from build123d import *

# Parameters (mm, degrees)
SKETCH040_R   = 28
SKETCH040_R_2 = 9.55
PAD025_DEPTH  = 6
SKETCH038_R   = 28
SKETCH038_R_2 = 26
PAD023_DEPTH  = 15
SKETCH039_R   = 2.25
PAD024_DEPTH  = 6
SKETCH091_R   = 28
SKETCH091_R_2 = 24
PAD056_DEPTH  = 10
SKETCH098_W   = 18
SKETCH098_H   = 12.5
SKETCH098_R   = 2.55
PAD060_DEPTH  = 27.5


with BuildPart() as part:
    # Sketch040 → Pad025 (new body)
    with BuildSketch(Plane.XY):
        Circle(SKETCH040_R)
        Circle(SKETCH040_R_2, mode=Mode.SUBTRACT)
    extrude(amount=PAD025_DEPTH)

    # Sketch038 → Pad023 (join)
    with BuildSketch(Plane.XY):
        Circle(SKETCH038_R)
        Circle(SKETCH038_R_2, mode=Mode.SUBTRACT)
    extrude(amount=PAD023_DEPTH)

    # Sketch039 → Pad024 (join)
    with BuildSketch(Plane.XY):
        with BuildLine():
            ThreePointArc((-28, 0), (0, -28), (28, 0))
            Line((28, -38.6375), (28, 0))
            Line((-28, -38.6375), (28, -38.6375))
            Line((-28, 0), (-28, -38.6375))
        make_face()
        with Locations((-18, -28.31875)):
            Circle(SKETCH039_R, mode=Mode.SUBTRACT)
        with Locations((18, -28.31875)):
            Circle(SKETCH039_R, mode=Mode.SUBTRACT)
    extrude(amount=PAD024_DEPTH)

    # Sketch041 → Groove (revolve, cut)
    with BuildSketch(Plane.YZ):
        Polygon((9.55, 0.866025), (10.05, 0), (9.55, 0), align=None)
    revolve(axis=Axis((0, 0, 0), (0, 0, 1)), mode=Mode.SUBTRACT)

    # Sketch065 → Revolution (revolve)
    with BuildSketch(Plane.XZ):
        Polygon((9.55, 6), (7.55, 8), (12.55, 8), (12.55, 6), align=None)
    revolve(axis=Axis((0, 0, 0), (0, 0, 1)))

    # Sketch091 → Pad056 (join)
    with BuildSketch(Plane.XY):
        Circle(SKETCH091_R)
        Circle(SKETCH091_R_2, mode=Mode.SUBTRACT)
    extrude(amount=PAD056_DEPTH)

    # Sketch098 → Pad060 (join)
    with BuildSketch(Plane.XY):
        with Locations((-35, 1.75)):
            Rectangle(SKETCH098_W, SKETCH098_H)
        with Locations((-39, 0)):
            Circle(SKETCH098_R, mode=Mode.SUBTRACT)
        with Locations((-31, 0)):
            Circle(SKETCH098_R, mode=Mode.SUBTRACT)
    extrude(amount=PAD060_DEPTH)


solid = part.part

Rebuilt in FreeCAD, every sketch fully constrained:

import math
import FreeCAD as App
import Part
import Sketcher
Q = App.Units.Quantity


def add_polygon(sketch, points):
    """Adds a closed chain of lines whose ends are joined by coincident constraints."""
    first, n = sketch.GeometryCount, len(points)
    for a, b in zip(points, points[1:] + points[:1]):
        sketch.addGeometry(Part.LineSegment(App.Vector(*a, 0), App.Vector(*b, 0)), False)
    for i in range(n):
        sketch.addConstraint(Sketcher.Constraint("Coincident", first + i, 2, first + (i + 1) % n, 1))

doc = App.newDocument("Part")
body = doc.addObject("PartDesign::Body", "Body")

sketch1 = body.newObject("Sketcher::SketchObject", "Sketch")
sketch1.AttachmentSupport = (doc.getObject("XY_Plane"), [""])
sketch1.MapMode = "FlatFace"
sketch1.addGeometry(Part.Circle(App.Vector(0, 0, 0), App.Vector(0, 0, 1), 28), False)
sketch1.addGeometry(Part.Circle(App.Vector(0, 0, 0), App.Vector(0, 0, 1), 9.55), False)
sketch1.addConstraint(Sketcher.Constraint("Coincident", 0, 3, -1, 1))
sketch1.addConstraint(Sketcher.Constraint("Coincident", 1, 3, -1, 1))
sketch1.addConstraint(Sketcher.Constraint("Diameter", 0, 56.0))
sketch1.addConstraint(Sketcher.Constraint("Diameter", 1, 19.1))
pad1 = body.newObject("PartDesign::Pad", "Pad")
pad1.Profile = sketch1
pad1.Length = 6

sketch2 = body.newObject("Sketcher::SketchObject", "Sketch001")
sketch2.AttachmentSupport = (doc.getObject("XY_Plane"), [""])
sketch2.MapMode = "FlatFace"
sketch2.addGeometry(Part.Circle(App.Vector(0, 0, 0), App.Vector(0, 0, 1), 28), False)
sketch2.addGeometry(Part.Circle(App.Vector(0, 0, 0), App.Vector(0, 0, 1), 26), False)
sketch2.addConstraint(Sketcher.Constraint("Coincident", 0, 3, -1, 1))
sketch2.addConstraint(Sketcher.Constraint("Coincident", 1, 3, -1, 1))
sketch2.addConstraint(Sketcher.Constraint("Diameter", 0, 56.0))
sketch2.addConstraint(Sketcher.Constraint("Diameter", 1, 52.0))
pad2 = body.newObject("PartDesign::Pad", "Pad001")
pad2.Profile = sketch2
pad2.Length = 15

sketch3 = body.newObject("Sketcher::SketchObject", "Sketch002")
sketch3.AttachmentSupport = (doc.getObject("XY_Plane"), [""])
sketch3.MapMode = "FlatFace"
sketch3.addGeometry(Part.ArcOfCircle(Part.Circle(App.Vector(0, 0, 0), App.Vector(0, 0, 1), 28), math.radians(180), math.radians(360)), False)
sketch3.addGeometry(Part.LineSegment(App.Vector(-28, 0, 0), App.Vector(-28, -38.6375, 0)), False)
sketch3.addGeometry(Part.LineSegment(App.Vector(-28, -38.6375, 0), App.Vector(28, -38.6375, 0)), False)
sketch3.addGeometry(Part.LineSegment(App.Vector(28, -38.6375, 0), App.Vector(28, 0, 0)), False)
sketch3.addGeometry(Part.Circle(App.Vector(18, -28.31875, 0), App.Vector(0, 0, 1), 2.25), False)
sketch3.addGeometry(Part.Circle(App.Vector(-18, -28.31875, 0), App.Vector(0, 0, 1), 2.25), False)
sketch3.addConstraint(Sketcher.Constraint("Tangent", 0, 1, 1, 1))
sketch3.addConstraint(Sketcher.Constraint("Coincident", 1, 2, 2, 1))
sketch3.addConstraint(Sketcher.Constraint("Coincident", 2, 2, 3, 1))
sketch3.addConstraint(Sketcher.Constraint("Tangent", 3, 2, 0, 2))
sketch3.addConstraint(Sketcher.Constraint("Vertical", 1))
sketch3.addConstraint(Sketcher.Constraint("Horizontal", 2))
sketch3.addConstraint(Sketcher.Constraint("Vertical", 3))
sketch3.addConstraint(Sketcher.Constraint("Coincident", 0, 3, -1, 1))
sketch3.addConstraint(Sketcher.Constraint("Equal", 4, 5))
sketch3.addConstraint(Sketcher.Constraint("Symmetric", 4, 3, 5, 3, -2))
sketch3.addConstraint(Sketcher.Constraint("Radius", 0, 28.0))
sketch3.addConstraint(Sketcher.Constraint("Diameter", 4, 4.5))
sketch3.addConstraint(Sketcher.Constraint("DistanceX", -1, 1, 4, 3, 18.0))
sketch3.addConstraint(Sketcher.Constraint("DistanceY", 1, 2, 1, 1, 38.6375))
sketch3.addConstraint(Sketcher.Constraint("DistanceY", 4, 3, -1, 1, 28.31875))
pad3 = body.newObject("PartDesign::Pad", "Pad002")
pad3.Profile = sketch3
pad3.Length = 6

sketch4 = body.newObject("Sketcher::SketchObject", "Sketch003")
sketch4.AttachmentSupport = (doc.getObject("YZ_Plane"), [""])
sketch4.MapMode = "FlatFace"
add_polygon(sketch4, [(10.05, 0), (9.55, 0.866025), (9.55, 0)])
sketch4.addConstraint(Sketcher.Constraint("Vertical", 1))
sketch4.addConstraint(Sketcher.Constraint("Horizontal", 2))
sketch4.addConstraint(Sketcher.Constraint("PointOnObject", 1, 2, -1))
sketch4.addConstraint(Sketcher.Constraint("Angle", 0, Q("120.000012 deg")))
sketch4.addConstraint(Sketcher.Constraint("Distance", 0, 1.0))
sketch4.addConstraint(Sketcher.Constraint("DistanceX", -1, 1, 0, 2, 9.55))
groove = body.newObject("PartDesign::Groove", "Groove")
groove.Profile = sketch4
groove.ReferenceAxis = (sketch4, ["V_Axis"])
groove.Angle = 360

sketch5 = body.newObject("Sketcher::SketchObject", "Sketch004")
sketch5.AttachmentSupport = (doc.getObject("XZ_Plane"), [""])
sketch5.MapMode = "FlatFace"
add_polygon(sketch5, [(7.55, 8), (9.55, 6), (12.55, 6), (12.55, 8)])
sketch5.addConstraint(Sketcher.Constraint("Horizontal", 1))
sketch5.addConstraint(Sketcher.Constraint("Vertical", 2))
sketch5.addConstraint(Sketcher.Constraint("Horizontal", 3))
sketch5.addConstraint(Sketcher.Constraint("DistanceX", 1, 1, 1, 2, 3.0))
sketch5.addConstraint(Sketcher.Constraint("DistanceX", 3, 2, 3, 1, 5.0))
sketch5.addConstraint(Sketcher.Constraint("DistanceY", 2, 1, 2, 2, 2.0))
sketch5.addConstraint(Sketcher.Constraint("DistanceY", -1, 1, 0, 2, 6.0))
sketch5.addConstraint(Sketcher.Constraint("DistanceX", -1, 1, 0, 2, 9.55))
revolution = body.newObject("PartDesign::Revolution", "Revolution")
revolution.Profile = sketch5
revolution.ReferenceAxis = (sketch5, ["V_Axis"])
revolution.Angle = 360

sketch6 = body.newObject("Sketcher::SketchObject", "Sketch005")
sketch6.AttachmentSupport = (doc.getObject("XY_Plane"), [""])
sketch6.MapMode = "FlatFace"
sketch6.addGeometry(Part.Circle(App.Vector(0, 0, 0), App.Vector(0, 0, 1), 28), False)
sketch6.addGeometry(Part.Circle(App.Vector(0, 0, 0), App.Vector(0, 0, 1), 24), False)
sketch6.addConstraint(Sketcher.Constraint("Coincident", 0, 3, -1, 1))
sketch6.addConstraint(Sketcher.Constraint("Coincident", 1, 3, -1, 1))
sketch6.addConstraint(Sketcher.Constraint("Diameter", 0, 56.0))
sketch6.addConstraint(Sketcher.Constraint("Diameter", 1, 48.0))
pad4 = body.newObject("PartDesign::Pad", "Pad003")
pad4.Profile = sketch6
pad4.Length = 10

sketch7 = body.newObject("Sketcher::SketchObject", "Sketch006")
sketch7.AttachmentSupport = (doc.getObject("XY_Plane"), [""])
sketch7.MapMode = "FlatFace"
add_polygon(sketch7, [(-44, 8), (-44, -4.5), (-26, -4.5), (-26, 8)])
sketch7.addGeometry(Part.Circle(App.Vector(-39, 0, 0), App.Vector(0, 0, 1), 2.55), False)
sketch7.addGeometry(Part.Circle(App.Vector(-31, 0, 0), App.Vector(0, 0, 1), 2.55), False)
sketch7.addConstraint(Sketcher.Constraint("Vertical", 0))
sketch7.addConstraint(Sketcher.Constraint("Horizontal", 1))
sketch7.addConstraint(Sketcher.Constraint("Vertical", 2))
sketch7.addConstraint(Sketcher.Constraint("Horizontal", 3))
sketch7.addConstraint(Sketcher.Constraint("Equal", 4, 5))
sketch7.addConstraint(Sketcher.Constraint("PointOnObject", 4, 3, -1))
sketch7.addConstraint(Sketcher.Constraint("PointOnObject", 5, 3, -1))
sketch7.addConstraint(Sketcher.Constraint("Diameter", 4, 5.1))
sketch7.addConstraint(Sketcher.Constraint("DistanceX", 1, 1, 1, 2, 18.0))
sketch7.addConstraint(Sketcher.Constraint("DistanceY", 0, 2, 0, 1, 12.5))
sketch7.addConstraint(Sketcher.Constraint("DistanceX", 4, 3, -1, 1, 39.0))
sketch7.addConstraint(Sketcher.Constraint("DistanceX", 5, 3, -1, 1, 31.0))
sketch7.addConstraint(Sketcher.Constraint("DistanceX", 0, 2, -1, 1, 44.0))
sketch7.addConstraint(Sketcher.Constraint("DistanceY", -1, 1, 2, 2, 8.0))
pad5 = body.newObject("PartDesign::Pad", "Pad004")
pad5.Profile = sketch7
pad5.Length = 27.5

doc.recompute()
